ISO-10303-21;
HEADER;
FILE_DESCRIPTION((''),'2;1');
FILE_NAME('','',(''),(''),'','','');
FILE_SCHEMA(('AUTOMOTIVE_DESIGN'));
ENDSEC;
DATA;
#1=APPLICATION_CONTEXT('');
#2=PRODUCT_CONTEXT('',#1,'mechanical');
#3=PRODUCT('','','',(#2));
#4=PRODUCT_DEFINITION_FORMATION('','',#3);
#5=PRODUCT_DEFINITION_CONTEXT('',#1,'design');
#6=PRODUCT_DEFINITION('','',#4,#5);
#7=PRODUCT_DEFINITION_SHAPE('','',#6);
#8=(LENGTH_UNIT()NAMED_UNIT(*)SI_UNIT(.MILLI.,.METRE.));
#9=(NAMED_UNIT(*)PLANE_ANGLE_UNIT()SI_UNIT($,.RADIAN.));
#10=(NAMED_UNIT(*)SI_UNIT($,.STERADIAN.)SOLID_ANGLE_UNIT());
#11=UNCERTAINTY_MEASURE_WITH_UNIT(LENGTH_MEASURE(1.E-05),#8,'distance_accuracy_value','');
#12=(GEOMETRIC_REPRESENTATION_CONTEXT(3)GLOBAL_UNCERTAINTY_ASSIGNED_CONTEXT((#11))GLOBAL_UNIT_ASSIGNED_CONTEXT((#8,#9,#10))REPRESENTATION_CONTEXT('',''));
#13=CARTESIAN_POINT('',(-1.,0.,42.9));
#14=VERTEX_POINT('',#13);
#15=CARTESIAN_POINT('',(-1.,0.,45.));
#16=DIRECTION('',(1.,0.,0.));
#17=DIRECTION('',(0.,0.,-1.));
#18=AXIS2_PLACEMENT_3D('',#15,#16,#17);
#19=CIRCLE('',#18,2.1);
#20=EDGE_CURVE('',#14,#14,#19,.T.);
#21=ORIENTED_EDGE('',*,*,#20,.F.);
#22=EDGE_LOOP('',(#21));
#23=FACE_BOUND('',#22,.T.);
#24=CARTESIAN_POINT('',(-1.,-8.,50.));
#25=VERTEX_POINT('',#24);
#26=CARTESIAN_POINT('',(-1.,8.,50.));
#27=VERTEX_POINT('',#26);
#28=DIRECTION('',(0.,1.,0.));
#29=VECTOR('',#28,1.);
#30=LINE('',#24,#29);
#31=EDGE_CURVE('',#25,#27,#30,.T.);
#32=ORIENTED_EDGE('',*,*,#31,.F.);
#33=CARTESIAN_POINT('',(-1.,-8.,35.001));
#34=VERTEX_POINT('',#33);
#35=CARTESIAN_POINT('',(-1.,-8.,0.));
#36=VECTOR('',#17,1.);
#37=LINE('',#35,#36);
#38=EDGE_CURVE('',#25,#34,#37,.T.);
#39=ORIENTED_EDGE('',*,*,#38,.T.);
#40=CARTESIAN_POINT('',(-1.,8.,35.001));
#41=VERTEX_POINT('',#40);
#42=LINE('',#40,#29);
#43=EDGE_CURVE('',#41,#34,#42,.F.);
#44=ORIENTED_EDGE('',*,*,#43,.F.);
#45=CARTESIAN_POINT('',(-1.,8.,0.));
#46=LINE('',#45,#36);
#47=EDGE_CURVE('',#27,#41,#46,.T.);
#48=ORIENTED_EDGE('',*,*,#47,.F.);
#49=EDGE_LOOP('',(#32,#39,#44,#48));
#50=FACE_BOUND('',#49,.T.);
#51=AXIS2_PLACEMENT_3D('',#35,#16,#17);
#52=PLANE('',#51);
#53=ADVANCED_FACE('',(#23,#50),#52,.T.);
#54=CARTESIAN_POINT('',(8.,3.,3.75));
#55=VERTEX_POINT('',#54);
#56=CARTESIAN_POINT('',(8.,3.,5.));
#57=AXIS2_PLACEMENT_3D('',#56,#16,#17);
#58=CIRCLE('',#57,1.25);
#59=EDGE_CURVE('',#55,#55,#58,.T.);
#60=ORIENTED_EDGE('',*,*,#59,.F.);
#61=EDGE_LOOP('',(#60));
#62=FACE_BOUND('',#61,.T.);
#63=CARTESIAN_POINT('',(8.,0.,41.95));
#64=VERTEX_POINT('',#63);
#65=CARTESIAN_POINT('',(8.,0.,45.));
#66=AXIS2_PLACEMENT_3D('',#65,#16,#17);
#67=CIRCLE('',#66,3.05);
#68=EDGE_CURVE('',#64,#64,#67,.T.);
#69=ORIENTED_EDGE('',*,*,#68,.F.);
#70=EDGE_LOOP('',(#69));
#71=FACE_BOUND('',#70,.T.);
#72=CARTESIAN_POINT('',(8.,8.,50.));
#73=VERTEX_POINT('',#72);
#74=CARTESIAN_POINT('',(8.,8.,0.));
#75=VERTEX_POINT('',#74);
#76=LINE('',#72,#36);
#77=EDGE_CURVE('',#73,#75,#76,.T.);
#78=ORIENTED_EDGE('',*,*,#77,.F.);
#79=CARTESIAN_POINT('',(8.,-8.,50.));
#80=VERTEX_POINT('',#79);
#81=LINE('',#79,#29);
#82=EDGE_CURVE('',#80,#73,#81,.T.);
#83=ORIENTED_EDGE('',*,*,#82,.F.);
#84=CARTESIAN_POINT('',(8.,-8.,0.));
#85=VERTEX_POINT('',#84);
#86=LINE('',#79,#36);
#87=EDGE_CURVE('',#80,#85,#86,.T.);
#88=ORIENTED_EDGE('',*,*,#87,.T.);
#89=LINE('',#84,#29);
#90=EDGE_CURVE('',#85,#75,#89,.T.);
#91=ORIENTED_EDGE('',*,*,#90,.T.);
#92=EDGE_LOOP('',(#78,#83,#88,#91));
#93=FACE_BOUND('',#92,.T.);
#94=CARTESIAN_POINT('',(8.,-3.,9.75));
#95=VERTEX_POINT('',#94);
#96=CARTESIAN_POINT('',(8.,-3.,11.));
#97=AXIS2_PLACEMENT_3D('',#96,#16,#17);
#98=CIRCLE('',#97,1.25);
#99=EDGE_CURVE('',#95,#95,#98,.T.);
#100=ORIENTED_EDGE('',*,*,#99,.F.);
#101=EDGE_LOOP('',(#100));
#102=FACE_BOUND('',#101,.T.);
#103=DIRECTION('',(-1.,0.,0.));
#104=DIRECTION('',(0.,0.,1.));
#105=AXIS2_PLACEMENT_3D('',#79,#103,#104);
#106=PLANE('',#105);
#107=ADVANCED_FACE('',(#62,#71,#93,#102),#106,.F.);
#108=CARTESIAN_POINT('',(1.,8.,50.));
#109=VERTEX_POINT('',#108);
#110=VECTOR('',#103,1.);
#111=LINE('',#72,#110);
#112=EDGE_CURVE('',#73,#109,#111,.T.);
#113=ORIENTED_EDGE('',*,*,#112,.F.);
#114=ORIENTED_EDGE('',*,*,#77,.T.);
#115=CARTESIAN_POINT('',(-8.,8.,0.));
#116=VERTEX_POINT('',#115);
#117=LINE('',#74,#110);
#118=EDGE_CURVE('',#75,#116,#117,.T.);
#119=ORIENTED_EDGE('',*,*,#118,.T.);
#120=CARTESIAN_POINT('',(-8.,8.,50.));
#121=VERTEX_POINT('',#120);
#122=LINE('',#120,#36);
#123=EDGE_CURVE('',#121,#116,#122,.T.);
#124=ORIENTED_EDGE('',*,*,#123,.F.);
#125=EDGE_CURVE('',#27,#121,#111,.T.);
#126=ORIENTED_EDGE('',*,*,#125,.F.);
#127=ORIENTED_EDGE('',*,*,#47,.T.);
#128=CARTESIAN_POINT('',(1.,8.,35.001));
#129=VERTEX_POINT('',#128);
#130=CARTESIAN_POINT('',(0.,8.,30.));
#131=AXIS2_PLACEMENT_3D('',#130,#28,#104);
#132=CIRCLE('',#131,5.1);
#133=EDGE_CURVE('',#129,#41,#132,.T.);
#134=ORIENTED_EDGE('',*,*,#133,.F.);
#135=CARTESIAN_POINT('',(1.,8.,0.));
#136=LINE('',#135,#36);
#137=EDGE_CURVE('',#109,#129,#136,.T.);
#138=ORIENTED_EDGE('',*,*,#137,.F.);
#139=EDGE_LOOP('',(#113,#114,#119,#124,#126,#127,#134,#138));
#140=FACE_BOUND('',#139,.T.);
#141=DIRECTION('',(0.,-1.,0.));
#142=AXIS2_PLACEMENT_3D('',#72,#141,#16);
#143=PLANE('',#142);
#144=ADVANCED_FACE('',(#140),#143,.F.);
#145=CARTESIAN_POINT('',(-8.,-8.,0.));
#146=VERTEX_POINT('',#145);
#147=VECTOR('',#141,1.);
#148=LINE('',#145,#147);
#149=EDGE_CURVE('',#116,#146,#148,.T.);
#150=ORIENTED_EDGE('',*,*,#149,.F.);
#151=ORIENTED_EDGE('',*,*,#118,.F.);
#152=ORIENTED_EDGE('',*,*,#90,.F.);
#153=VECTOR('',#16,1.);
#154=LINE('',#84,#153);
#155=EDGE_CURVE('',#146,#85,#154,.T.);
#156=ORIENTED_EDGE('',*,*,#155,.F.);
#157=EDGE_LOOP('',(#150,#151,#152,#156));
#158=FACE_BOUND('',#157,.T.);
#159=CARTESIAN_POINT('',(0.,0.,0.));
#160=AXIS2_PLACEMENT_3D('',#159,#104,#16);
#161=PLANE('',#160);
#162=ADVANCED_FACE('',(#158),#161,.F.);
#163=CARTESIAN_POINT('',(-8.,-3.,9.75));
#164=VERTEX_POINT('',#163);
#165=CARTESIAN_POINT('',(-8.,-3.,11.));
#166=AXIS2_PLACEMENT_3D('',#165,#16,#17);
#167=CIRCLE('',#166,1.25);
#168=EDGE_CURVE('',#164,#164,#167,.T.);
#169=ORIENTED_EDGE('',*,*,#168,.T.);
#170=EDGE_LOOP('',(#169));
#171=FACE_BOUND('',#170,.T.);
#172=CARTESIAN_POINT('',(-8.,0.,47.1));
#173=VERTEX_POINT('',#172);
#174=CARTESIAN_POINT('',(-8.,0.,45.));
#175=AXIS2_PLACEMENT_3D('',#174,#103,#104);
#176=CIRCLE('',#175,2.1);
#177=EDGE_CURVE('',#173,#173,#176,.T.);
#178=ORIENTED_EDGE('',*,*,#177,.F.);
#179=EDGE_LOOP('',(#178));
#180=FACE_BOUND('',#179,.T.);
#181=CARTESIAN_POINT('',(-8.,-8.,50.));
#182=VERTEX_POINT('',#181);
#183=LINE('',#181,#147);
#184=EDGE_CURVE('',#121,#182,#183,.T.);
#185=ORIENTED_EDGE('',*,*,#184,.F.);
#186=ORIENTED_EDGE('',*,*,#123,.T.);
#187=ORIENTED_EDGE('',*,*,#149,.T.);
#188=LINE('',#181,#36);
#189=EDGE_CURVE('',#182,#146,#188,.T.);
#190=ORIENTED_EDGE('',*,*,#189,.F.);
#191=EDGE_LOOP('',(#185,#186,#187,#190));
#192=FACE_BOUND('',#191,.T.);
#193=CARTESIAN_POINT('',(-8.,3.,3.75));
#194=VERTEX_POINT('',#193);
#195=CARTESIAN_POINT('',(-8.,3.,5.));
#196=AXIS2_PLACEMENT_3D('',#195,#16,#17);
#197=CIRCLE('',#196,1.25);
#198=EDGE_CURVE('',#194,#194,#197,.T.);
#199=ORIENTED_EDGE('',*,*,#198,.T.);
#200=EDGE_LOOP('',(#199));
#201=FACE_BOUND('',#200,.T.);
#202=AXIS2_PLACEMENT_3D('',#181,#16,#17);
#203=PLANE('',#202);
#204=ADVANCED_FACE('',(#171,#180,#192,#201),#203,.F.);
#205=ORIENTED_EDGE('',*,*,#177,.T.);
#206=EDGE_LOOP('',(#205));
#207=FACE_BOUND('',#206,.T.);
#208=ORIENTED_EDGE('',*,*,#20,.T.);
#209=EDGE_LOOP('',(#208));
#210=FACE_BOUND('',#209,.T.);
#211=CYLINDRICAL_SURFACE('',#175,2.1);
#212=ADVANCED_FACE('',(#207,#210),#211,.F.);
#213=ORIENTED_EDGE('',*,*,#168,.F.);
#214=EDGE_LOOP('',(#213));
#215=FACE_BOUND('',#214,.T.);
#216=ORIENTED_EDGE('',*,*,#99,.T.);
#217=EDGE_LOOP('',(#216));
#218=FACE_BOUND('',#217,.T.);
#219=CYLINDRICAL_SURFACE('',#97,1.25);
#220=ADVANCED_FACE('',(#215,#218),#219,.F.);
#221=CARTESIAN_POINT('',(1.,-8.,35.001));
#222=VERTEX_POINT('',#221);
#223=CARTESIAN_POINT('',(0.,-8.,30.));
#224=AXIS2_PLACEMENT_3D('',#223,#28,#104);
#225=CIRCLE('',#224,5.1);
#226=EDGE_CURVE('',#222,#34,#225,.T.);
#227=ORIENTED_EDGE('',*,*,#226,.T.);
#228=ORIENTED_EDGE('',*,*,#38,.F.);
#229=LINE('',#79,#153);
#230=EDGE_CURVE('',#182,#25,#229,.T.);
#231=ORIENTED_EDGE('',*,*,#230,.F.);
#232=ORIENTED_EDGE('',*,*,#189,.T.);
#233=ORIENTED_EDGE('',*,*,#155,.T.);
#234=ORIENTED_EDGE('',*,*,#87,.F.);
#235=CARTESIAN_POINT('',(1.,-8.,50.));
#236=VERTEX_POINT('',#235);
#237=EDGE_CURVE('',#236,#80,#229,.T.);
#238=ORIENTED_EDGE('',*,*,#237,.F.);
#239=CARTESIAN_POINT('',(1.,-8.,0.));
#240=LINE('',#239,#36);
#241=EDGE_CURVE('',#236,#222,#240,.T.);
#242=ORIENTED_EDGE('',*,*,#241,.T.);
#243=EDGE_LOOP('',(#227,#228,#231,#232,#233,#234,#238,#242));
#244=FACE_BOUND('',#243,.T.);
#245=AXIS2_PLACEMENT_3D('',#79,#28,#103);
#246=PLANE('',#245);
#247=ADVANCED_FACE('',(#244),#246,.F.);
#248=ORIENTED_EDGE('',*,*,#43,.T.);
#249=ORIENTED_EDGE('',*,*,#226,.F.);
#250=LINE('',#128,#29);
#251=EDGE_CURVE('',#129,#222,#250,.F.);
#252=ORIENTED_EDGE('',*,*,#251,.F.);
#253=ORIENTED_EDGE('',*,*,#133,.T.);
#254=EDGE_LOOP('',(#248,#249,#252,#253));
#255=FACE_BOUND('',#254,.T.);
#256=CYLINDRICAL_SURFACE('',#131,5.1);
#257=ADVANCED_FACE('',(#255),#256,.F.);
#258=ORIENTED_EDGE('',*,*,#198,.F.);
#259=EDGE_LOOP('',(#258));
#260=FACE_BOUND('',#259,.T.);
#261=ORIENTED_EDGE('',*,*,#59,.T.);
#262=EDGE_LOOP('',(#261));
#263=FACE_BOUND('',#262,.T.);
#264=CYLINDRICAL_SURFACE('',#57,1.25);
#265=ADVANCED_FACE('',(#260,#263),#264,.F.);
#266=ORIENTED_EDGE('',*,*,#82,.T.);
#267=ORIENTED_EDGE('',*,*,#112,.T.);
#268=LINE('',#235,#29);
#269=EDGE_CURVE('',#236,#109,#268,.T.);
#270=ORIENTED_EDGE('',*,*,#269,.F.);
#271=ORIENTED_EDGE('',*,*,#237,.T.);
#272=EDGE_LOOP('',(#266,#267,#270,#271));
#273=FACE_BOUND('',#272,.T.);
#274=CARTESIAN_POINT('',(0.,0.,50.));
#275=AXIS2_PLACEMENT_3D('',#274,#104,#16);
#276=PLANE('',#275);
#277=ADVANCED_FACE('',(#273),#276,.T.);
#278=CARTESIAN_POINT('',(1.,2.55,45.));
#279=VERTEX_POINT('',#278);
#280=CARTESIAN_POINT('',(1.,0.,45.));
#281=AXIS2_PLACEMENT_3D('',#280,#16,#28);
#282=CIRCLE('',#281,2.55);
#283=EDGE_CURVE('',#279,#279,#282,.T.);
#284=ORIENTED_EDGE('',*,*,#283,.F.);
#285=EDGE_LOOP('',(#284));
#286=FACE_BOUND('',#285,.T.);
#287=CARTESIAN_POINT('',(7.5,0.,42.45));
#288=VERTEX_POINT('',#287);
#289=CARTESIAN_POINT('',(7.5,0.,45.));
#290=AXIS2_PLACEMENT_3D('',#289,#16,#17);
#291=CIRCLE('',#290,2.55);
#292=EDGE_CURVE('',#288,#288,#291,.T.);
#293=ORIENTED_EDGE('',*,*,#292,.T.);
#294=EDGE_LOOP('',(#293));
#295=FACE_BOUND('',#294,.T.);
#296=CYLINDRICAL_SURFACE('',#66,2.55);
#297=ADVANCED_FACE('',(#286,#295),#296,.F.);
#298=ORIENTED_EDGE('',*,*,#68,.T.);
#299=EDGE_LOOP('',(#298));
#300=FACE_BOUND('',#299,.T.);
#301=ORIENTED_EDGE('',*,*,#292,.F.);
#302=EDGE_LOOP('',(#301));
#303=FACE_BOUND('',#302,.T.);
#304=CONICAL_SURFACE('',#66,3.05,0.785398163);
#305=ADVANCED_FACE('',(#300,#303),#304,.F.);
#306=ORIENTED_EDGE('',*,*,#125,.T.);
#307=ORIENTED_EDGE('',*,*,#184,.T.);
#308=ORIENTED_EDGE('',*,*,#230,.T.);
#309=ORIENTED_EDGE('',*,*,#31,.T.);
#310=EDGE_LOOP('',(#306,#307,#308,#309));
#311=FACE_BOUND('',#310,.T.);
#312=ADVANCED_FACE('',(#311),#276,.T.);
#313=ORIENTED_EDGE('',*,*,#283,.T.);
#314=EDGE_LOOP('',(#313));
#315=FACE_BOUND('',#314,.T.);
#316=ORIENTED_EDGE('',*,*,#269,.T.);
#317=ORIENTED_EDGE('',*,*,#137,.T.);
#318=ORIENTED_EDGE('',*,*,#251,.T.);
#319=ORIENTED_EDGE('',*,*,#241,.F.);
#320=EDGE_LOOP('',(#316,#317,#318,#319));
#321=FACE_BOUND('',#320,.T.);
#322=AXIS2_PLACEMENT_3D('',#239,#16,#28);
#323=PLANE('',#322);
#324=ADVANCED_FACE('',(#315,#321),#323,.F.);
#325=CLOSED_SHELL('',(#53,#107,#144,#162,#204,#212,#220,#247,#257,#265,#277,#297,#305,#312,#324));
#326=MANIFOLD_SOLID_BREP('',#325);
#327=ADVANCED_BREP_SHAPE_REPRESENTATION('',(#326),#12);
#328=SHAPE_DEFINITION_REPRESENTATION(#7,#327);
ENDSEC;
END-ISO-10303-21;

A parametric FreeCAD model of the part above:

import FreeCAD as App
import Part
import Sketcher
from FreeCAD import Vector
Q = App.Units.Quantity


def add_polygon(sketch, points):
    """Adds a closed chain of lines whose ends are joined by coincident constraints."""
    first, n = sketch.GeometryCount, len(points)
    for a, b in zip(points, points[1:] + points[:1]):
        sketch.addGeometry(Part.LineSegment(App.Vector(*a, 0), App.Vector(*b, 0)), False)
    for i in range(n):
        sketch.addConstraint(Sketcher.Constraint("Coincident", first + i, 2, first + (i + 1) % n, 1))

doc = App.newDocument("Part")
body = doc.addObject("PartDesign::Body", "Body")

sketch1 = body.newObject("Sketcher::SketchObject", "Sketch")
sketch1.AttachmentSupport = (doc.getObject("XY_Plane"), [""])
sketch1.MapMode = "FlatFace"
add_polygon(sketch1, [(-8, 8), (-8, -8), (8, -8), (8, 8)])
sketch1.addConstraint([
    Sketcher.Constraint("Vertical", 0),
    Sketcher.Constraint("Horizontal", 1),
    Sketcher.Constraint("Vertical", 2),
    Sketcher.Constraint("Horizontal", 3),
    Sketcher.Constraint("Symmetric", 0, 2, 2, 2, -1, 1),
    Sketcher.Constraint("Equal", 3, 0),
    Sketcher.Constraint("DistanceX", 1, 1, 1, 2, Q("16 mm")),
])
pad1 = body.newObject("PartDesign::Pad", "Pad")
pad1.Profile = sketch1
pad1.Length = 50

sketch2 = body.newObject("Sketcher::SketchObject", "Sketch001")
sketch2.AttachmentSupport = (doc.getObject("XZ_Plane"), [""])
sketch2.MapMode = "FlatFace"
sketch2.AttachmentOffset = App.Placement(Vector(0, 0, -8), App.Rotation())
add_polygon(sketch2, [(-1, 34), (-1, 50), (1, 50), (1, 34)])
sketch2.addConstraint([
    Sketcher.Constraint("Vertical", 0),
    Sketcher.Constraint("Horizontal", 1),
    Sketcher.Constraint("Vertical", 2),
    Sketcher.Constraint("Horizontal", 3),
    Sketcher.Constraint("DistanceX", 1, 1, 1, 2, Q("2 mm")),
    Sketcher.Constraint("DistanceY", 0, 1, 0, 2, Q("16 mm")),
    Sketcher.Constraint("DistanceX", 0, 2, -1, 1, Q("1 mm")),
    Sketcher.Constraint("DistanceY", -1, 1, 0, 2, Q("50 mm")),
])
pocket1 = body.newObject("PartDesign::Pocket", "Pocket")
pocket1.Profile = sketch2
pocket1.Type = "ThroughAll"
pocket1.Reversed = True

sketch3 = body.newObject("Sketcher::SketchObject", "Sketch002")
sketch3.AttachmentSupport = (doc.getObject("YZ_Plane"), [""])
sketch3.MapMode = "FlatFace"
sketch3.AttachmentOffset = App.Placement(Vector(0, 0, 8), App.Rotation())
sketch3.addGeometry(Part.Circle(Vector(0, 45, 0), Vector(0, 0, 1), 2.55), False)
sketch3.addConstraint([
    Sketcher.Constraint("PointOnObject", 0, 3, -2),
    Sketcher.Constraint("Diameter", 0, Q("5.1 mm")),
    Sketcher.Constraint("DistanceY", -1, 1, 0, 3, Q("45 mm")),
])
doc.recompute()
hole = body.newObject("PartDesign::Hole", "Hole")
hole.Profile = sketch3
hole.ThreadType = "None"
hole.Diameter = 5.1
hole.DepthType = "Dimension"
hole.Depth = 7.5
hole.DrillPoint = "Angled"
hole.DrillPointAngle = 135
hole.HoleCutType = "Countersink"
hole.HoleCutDiameter = 6.1
hole.HoleCutCountersinkAngle = 90

sketch4 = body.newObject("Sketcher::SketchObject", "Sketch003")
sketch4.AttachmentSupport = (doc.getObject("YZ_Plane"), [""])
sketch4.MapMode = "FlatFace"
sketch4.AttachmentOffset = App.Placement(Vector(0, 0, -8), App.Rotation())
sketch4.addGeometry(Part.Circle(Vector(0, 45, 0), Vector(0, 0, 1), 2.1), False)
sketch4.addConstraint([
    Sketcher.Constraint("PointOnObject", 0, 3, -2),
    Sketcher.Constraint("Diameter", 0, Q("4.2 mm")),
    Sketcher.Constraint("DistanceY", -1, 1, 0, 3, Q("45 mm")),
])
doc.recompute()
hole2 = body.newObject("PartDesign::Hole", "Hole001")
hole2.Profile = sketch4
hole2.ThreadType = "None"
hole2.Diameter = 4.2
hole2.DepthType = "Dimension"
hole2.Depth = 7.638193
hole2.DrillPoint = "Angled"
hole2.DrillPointAngle = 118
hole2.Reversed = True

sketch5 = body.newObject("Sketcher::SketchObject", "Sketch004")
sketch5.AttachmentSupport = (doc.getObject("YZ_Plane"), [""])
sketch5.MapMode = "FlatFace"
sketch5.AttachmentOffset = App.Placement(Vector(0, 0, 8), App.Rotation())
sketch5.addGeometry([
    Part.Circle(Vector(3, 5, 0), Vector(0, 0, 1), 1.25),
    Part.Circle(Vector(-3, 11, 0), Vector(0, 0, 1), 1.25),
], False)
sketch5.addConstraint([
    Sketcher.Constraint("Equal", 0, 1),
    Sketcher.Constraint("Diameter", 0, Q("2.5 mm")),
    Sketcher.Constraint("DistanceX", -1, 1, 0, 3, Q("3 mm")),
    Sketcher.Constraint("DistanceY", -1, 1, 0, 3, Q("5 mm")),
    Sketcher.Constraint("DistanceX", 1, 3, -1, 1, Q("3 mm")),
    Sketcher.Constraint("DistanceY", -1, 1, 1, 3, Q("11 mm")),
])
doc.recompute()
hole3 = body.newObject("PartDesign::Hole", "Hole002")
hole3.Profile = sketch5
hole3.ThreadType = "None"
hole3.Diameter = 2.5
hole3.DepthType = "ThroughAll"

sketch6 = body.newObject("Sketcher::SketchObject", "Sketch005")
sketch6.AttachmentSupport = (doc.getObject("XZ_Plane"), [""])
sketch6.MapMode = "FlatFace"
sketch6.AttachmentOffset = App.Placement(Vector(0, 0, -8), App.Rotation())
sketch6.addGeometry(Part.Circle(Vector(0, 30, 0), Vector(0, 0, 1), 5.1), False)
sketch6.addConstraint([
    Sketcher.Constraint("PointOnObject", 0, 3, -2),
    Sketcher.Constraint("Diameter", 0, Q("10.2 mm")),
    Sketcher.Constraint("DistanceY", -1, 1, 0, 3, Q("30 mm")),
])
doc.recompute()
hole4 = body.newObject("PartDesign::Hole", "Hole003")
hole4.Profile = sketch6
hole4.ThreadType = "None"
hole4.Diameter = 10.2
hole4.DepthType = "ThroughAll"
hole4.Reversed = True

doc.recompute()
